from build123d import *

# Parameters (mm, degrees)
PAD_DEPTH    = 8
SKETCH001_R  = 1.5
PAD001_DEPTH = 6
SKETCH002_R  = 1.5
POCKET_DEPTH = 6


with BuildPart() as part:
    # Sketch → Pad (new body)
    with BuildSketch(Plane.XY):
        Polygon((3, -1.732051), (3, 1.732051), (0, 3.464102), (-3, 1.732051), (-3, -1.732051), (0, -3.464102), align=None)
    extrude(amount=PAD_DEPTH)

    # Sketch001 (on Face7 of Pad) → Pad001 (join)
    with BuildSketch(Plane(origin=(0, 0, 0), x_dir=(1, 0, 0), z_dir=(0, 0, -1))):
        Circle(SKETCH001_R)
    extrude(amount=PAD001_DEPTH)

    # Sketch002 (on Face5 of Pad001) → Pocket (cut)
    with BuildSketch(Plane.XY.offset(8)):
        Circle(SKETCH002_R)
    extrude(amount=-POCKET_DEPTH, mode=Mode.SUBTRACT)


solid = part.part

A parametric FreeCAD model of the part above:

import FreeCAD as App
import Part
import Sketcher
from FreeCAD import Vector
Q = App.Units.Quantity

doc = App.newDocument("Part")
body = doc.addObject("PartDesign::Body", "Body")

# Sketch on XY plane
sketch1 = body.newObject("Sketcher::SketchObject", "Sketch")
sketch1.AttachmentSupport = (doc.getObject("XY_Plane"), [""])
sketch1.MapMode = "FlatFace"
sketch1.addGeometry([
    Part.LineSegment(Vector(3, -1.7, 0), Vector(3, 1.7, 0)),  # 0
    Part.LineSegment(Vector(3, 1.7, 0), Vector(0, 3.5, 0)),  # 1
    Part.LineSegment(Vector(0, 3.5, 0), Vector(-3, 1.7, 0)),  # 2
    Part.LineSegment(Vector(-3, 1.7, 0), Vector(-3, -1.7, 0)),  # 3
    Part.LineSegment(Vector(-3, -1.7, 0), Vector(0, -3.5, 0)),  # 4
    Part.LineSegment(Vector(0, -3.5, 0), Vector(3, -1.7, 0)),  # 5
], False)
sketch1.addConstraint([
    Sketcher.Constraint("Coincident", 0, 2, 1, 1),
    Sketcher.Constraint("Coincident", 1, 2, 2, 1),
    Sketcher.Constraint("Coincident", 2, 2, 3, 1),
    Sketcher.Constraint("Coincident", 3, 2, 4, 1),
    Sketcher.Constraint("Coincident", 4, 2, 5, 1),
    Sketcher.Constraint("Coincident", 5, 2, 0, 1),
    Sketcher.Constraint("Vertical", 0),
    Sketcher.Constraint("Vertical", 3),
    Sketcher.Constraint("Symmetric", 0, 2, 3, 2, -1, 1),
    Sketcher.Constraint("Symmetric", 1, 2, 4, 2, -1, 1),
    Sketcher.Constraint("PointOnObject", 1, 2, -2),
    Sketcher.Constraint("Parallel", 2, 5),
    Sketcher.Constraint("Horizontal", 0, 2, 2, 2),
    Sketcher.Constraint("Angle", 1, Q("149.999997 deg")),
    Sketcher.Constraint("DistanceX", -1, 1, 0, 2, Q("3 mm")),
    Sketcher.Constraint("DistanceY", 0, 1, 0, 2, Q("3.464102 mm")),
])
pad1 = body.newObject("PartDesign::Pad", "Pad")
pad1.Profile = sketch1
pad1.Length = 8

# Sketch on XY plane
sketch2 = body.newObject("Sketcher::SketchObject", "Sketch001")
sketch2.AttachmentSupport = (doc.getObject("XY_Plane"), [""])
sketch2.MapMode = "FlatFace"
sketch2.addGeometry(Part.Circle(Vector(0, 0, 0), Vector(0, 0, 1), 1.5), False)
sketch2.addConstraint([
    Sketcher.Constraint("Coincident", 0, 3, -1, 1),
    Sketcher.Constraint("Diameter", 0, Q("3 mm")),
])
pad2 = body.newObject("PartDesign::Pad", "Pad001")
pad2.Profile = sketch2
pad2.Length = 6
pad2.Reversed = True

# Sketch on XY plane
sketch3 = body.newObject("Sketcher::SketchObject", "Sketch002")
sketch3.AttachmentSupport = (doc.getObject("XY_Plane"), [""])
sketch3.MapMode = "FlatFace"
sketch3.AttachmentOffset = App.Placement(Vector(0, 0, 8), App.Rotation())
sketch3.addGeometry(Part.Circle(Vector(0, 0, 0), Vector(0, 0, 1), 1.5), False)
sketch3.addConstraint([
    Sketcher.Constraint("Coincident", 0, 3, -1, 1),
    Sketcher.Constraint("Diameter", 0, Q("3 mm")),
])
pocket1 = body.newObject("PartDesign::Pocket", "Pocket")
pocket1.Profile = sketch3
pocket1.Length = 6

doc.recompute()
